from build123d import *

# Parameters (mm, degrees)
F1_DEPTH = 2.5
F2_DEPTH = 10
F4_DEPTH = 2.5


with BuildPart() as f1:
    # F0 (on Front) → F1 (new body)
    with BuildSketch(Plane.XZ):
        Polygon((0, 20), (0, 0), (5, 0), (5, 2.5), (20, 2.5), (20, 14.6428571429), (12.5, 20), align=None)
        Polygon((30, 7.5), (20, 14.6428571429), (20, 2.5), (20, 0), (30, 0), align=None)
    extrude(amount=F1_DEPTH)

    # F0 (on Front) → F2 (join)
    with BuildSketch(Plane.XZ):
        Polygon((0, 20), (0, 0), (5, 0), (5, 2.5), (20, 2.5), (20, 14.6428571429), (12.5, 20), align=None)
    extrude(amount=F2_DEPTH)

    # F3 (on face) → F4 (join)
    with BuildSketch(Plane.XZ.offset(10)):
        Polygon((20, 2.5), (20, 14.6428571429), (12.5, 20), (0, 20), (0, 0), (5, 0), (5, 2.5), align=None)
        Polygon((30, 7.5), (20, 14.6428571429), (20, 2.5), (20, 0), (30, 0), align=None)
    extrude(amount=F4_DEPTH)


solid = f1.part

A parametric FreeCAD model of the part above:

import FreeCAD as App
import Part
import Sketcher
from FreeCAD import Vector


def add_polygon(sketch, points):
    """Adds a closed chain of lines whose ends are joined by coincident constraints."""
    first, n = sketch.GeometryCount, len(points)
    for a, b in zip(points, points[1:] + points[:1]):
        sketch.addGeometry(Part.LineSegment(App.Vector(*a, 0), App.Vector(*b, 0)), False)
    for i in range(n):
        sketch.addConstraint(Sketcher.Constraint("Coincident", first + i, 2, first + (i + 1) % n, 1))

doc = App.newDocument("Part")
body = doc.addObject("PartDesign::Body", "Body")

sketch1 = doc.addObject("Sketcher::SketchObject", "Sketch")
body.addObject(sketch1)
sketch1.AttachmentSupport = (doc.XZ_Plane, [""])
sketch1.MapMode = "FlatFace"
add_polygon(sketch1, [(0, 20), (0, 0), (5, 0), (5, 2.5), (20, 2.5), (20, 0), (30, 0), (30, 7.5), (20, 14.6), (12.5, 20)])
sketch1.addConstraint(Sketcher.Constraint("Vertical", 0))
sketch1.addConstraint(Sketcher.Constraint("Horizontal", 1))
sketch1.addConstraint(Sketcher.Constraint("Vertical", 2))
sketch1.addConstraint(Sketcher.Constraint("Horizontal", 3))
sketch1.addConstraint(Sketcher.Constraint("Vertical", 4))
sketch1.addConstraint(Sketcher.Constraint("Horizontal", 5))
sketch1.addConstraint(Sketcher.Constraint("Vertical", 6))
sketch1.addConstraint(Sketcher.Constraint("Horizontal", 9))
sketch1.addConstraint(Sketcher.Constraint("Coincident", 0, 2, -1, 1))
sketch1.addConstraint(Sketcher.Constraint("PointOnObject", 4, 2, -1))
sketch1.addConstraint(Sketcher.Constraint("Parallel", 7, 8))
sketch1.addConstraint(Sketcher.Constraint("Vertical", 4, 2, 7, 2))
sketch1.addConstraint(Sketcher.Constraint("DistanceX", 1, 1, 1, 2, 5.0))
sketch1.addConstraint(Sketcher.Constraint("DistanceX", 3, 1, 3, 2, 15.0))
sketch1.addConstraint(Sketcher.Constraint("DistanceX", 5, 1, 5, 2, 10.0))
sketch1.addConstraint(Sketcher.Constraint("DistanceY", 0, 2, 0, 1, 20.0))
sketch1.addConstraint(Sketcher.Constraint("DistanceX", 9, 2, 9, 1, 12.5))
sketch1.addConstraint(Sketcher.Constraint("DistanceY", 2, 1, 2, 2, 2.5))
sketch1.addConstraint(Sketcher.Constraint("DistanceY", 6, 1, 6, 2, 7.5))
pad1 = doc.addObject("PartDesign::Pad", "Pad")
body.addObject(pad1)
pad1.Profile = sketch1
pad1.Length = 2.5

sketch2 = doc.addObject("Sketcher::SketchObject", "Sketch001")
body.addObject(sketch2)
sketch2.AttachmentSupport = (doc.XZ_Plane, [""])
sketch2.MapMode = "FlatFace"
add_polygon(sketch2, [(0, 20), (0, 0), (5, 0), (5, 2.5), (20, 2.5), (20, 14.6), (12.5, 20)])
sketch2.addConstraint(Sketcher.Constraint("Vertical", 0))
sketch2.addConstraint(Sketcher.Constraint("Horizontal", 1))
sketch2.addConstraint(Sketcher.Constraint("Vertical", 2))
sketch2.addConstraint(Sketcher.Constraint("Horizontal", 3))
sketch2.addConstraint(Sketcher.Constraint("Vertical", 4))
sketch2.addConstraint(Sketcher.Constraint("Horizontal", 6))
sketch2.addConstraint(Sketcher.Constraint("Coincident", 0, 2, -1, 1))
sketch2.addConstraint(Sketcher.Constraint("DistanceX", 1, 1, 1, 2, 5.0))
sketch2.addConstraint(Sketcher.Constraint("DistanceX", 3, 1, 3, 2, 15.0))
sketch2.addConstraint(Sketcher.Constraint("DistanceY", 0, 2, 0, 1, 20.0))
sketch2.addConstraint(Sketcher.Constraint("DistanceX", 6, 2, 6, 1, 12.5))
sketch2.addConstraint(Sketcher.Constraint("DistanceY", 2, 1, 2, 2, 2.5))
sketch2.addConstraint(Sketcher.Constraint("DistanceY", 4, 1, 4, 2, 12.142857))
pad2 = doc.addObject("PartDesign::Pad", "Pad001")
body.addObject(pad2)
pad2.Profile = sketch2
pad2.Length = 10

sketch3 = doc.addObject("Sketcher::SketchObject", "Sketch002")
body.addObject(sketch3)
sketch3.AttachmentSupport = (doc.XZ_Plane, [""])
sketch3.MapMode = "FlatFace"
sketch3.AttachmentOffset = App.Placement(Vector(0, 0, 10), App.Rotation())
add_polygon(sketch3, [(20, 14.6), (12.5, 20), (0, 20), (0, 0), (5, 0), (5, 2.5), (20, 2.5), (20, 0), (30, 0), (30, 7.5)])
sketch3.addConstraint(Sketcher.Constraint("Horizontal", 1))
sketch3.addConstraint(Sketcher.Constraint("Vertical", 2))
sketch3.addConstraint(Sketcher.Constraint("Horizontal", 3))
sketch3.addConstraint(Sketcher.Constraint("Vertical", 4))
sketch3.addConstraint(Sketcher.Constraint("Horizontal", 5))
sketch3.addConstraint(Sketcher.Constraint("Vertical", 6))
sketch3.addConstraint(Sketcher.Constraint("Horizontal", 7))
sketch3.addConstraint(Sketcher.Constraint("Vertical", 8))
sketch3.addConstraint(Sketcher.Constraint("Coincident", 2, 2, -1, 1))
sketch3.addConstraint(Sketcher.Constraint("PointOnObject", 6, 2, -1))
sketch3.addConstraint(Sketcher.Constraint("Parallel", 0, 9))
sketch3.addConstraint(Sketcher.Constraint("Vertical", 6, 2, 9, 2))
sketch3.addConstraint(Sketcher.Constraint("DistanceX", 3, 1, 3, 2, 5.0))
sketch3.addConstraint(Sketcher.Constraint("DistanceX", 5, 1, 5, 2, 15.0))
sketch3.addConstraint(Sketcher.Constraint("DistanceX", 7, 1, 7, 2, 10.0))
sketch3.addConstraint(Sketcher.Constraint("DistanceY", 2, 2, 2, 1, 20.0))
sketch3.addConstraint(Sketcher.Constraint("DistanceX", 1, 2, 1, 1, 12.5))
sketch3.addConstraint(Sketcher.Constraint("DistanceY", 4, 1, 4, 2, 2.5))
sketch3.addConstraint(Sketcher.Constraint("DistanceY", 8, 1, 8, 2, 7.5))
pad3 = doc.addObject("PartDesign::Pad", "Pad002")
body.addObject(pad3)
pad3.Profile = sketch3
pad3.Length = 2.5

doc.recompute()
